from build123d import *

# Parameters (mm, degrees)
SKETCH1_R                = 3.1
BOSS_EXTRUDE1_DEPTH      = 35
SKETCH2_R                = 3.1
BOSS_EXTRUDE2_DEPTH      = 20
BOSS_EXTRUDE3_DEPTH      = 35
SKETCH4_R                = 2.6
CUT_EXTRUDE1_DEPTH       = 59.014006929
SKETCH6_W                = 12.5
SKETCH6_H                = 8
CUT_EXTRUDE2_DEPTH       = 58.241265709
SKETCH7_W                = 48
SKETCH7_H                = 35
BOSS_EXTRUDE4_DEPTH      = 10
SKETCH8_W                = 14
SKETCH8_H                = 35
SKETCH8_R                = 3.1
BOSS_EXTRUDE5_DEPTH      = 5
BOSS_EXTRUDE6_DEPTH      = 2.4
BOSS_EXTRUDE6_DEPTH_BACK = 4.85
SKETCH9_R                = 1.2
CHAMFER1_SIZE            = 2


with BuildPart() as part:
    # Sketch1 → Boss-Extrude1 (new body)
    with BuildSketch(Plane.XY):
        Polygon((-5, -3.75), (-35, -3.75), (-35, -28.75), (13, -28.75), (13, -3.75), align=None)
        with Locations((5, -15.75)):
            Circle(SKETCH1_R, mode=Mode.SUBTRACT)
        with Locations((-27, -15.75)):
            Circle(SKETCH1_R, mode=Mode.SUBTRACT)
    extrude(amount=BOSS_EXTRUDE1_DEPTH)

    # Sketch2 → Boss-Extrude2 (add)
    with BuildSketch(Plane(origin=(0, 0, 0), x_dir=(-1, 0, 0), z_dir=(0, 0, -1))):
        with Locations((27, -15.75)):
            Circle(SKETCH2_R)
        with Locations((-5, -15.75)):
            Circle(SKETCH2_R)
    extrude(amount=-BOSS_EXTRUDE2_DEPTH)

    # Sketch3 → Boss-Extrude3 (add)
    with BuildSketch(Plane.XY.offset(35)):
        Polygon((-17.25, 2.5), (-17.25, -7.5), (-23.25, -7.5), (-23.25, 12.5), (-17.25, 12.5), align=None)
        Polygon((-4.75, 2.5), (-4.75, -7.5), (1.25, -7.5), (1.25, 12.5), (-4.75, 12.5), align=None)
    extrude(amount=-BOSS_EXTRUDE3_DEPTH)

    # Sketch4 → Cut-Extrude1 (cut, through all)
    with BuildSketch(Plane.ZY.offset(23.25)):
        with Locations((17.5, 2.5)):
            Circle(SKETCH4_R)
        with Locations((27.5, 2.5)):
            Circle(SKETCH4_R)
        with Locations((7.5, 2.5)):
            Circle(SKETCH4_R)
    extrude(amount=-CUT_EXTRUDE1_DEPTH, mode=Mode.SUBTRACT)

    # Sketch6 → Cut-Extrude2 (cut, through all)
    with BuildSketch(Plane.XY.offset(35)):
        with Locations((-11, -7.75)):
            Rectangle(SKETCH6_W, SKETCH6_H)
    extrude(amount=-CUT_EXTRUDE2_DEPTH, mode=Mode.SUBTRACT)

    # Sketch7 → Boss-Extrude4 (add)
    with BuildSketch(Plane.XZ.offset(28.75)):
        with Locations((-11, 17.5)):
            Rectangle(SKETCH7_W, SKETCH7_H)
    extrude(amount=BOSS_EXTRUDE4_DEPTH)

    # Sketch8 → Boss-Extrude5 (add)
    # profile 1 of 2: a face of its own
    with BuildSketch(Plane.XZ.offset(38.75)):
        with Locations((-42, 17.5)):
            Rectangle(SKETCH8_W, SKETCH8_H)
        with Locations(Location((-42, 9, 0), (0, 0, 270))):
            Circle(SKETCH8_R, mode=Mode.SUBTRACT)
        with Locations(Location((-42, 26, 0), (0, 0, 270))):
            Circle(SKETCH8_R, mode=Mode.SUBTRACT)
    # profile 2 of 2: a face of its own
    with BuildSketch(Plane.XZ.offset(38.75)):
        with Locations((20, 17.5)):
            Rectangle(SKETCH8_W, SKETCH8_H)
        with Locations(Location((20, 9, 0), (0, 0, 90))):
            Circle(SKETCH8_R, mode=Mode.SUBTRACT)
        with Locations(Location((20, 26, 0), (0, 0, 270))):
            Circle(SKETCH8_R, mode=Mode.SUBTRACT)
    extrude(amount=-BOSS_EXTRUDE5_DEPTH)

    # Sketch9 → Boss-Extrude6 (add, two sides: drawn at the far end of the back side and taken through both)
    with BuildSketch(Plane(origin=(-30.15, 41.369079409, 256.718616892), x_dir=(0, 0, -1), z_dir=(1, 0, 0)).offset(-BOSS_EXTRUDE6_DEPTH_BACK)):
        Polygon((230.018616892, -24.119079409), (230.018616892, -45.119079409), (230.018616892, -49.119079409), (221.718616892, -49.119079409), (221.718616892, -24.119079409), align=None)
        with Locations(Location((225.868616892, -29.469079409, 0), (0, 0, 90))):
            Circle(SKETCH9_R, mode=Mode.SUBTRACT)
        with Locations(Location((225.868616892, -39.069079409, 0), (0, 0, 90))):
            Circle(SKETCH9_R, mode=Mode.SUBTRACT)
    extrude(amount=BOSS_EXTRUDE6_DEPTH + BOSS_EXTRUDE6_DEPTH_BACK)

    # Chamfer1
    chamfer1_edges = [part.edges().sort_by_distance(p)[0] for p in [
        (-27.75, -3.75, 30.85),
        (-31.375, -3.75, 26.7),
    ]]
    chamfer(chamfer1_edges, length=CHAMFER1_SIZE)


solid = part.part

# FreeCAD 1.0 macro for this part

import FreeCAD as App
import Part
import Sketcher


def edges_at(feature, points):
    """Names of the edges that pass closest to the given points."""
    edges = feature.Shape.Edges
    near = lambda p: min(range(len(edges)), key=lambda i: edges[i].distToShape(Part.Vertex(*p))[0])
    return sorted({f"Edge{near(p) + 1}" for p in points})

doc = App.newDocument("Part")
params = doc.addObject("Spreadsheet::Sheet", "Params")
for row, (alias, value) in enumerate([
    ("sketch1_diameter", "6.2 mm"),
    ("sketch1_width", "48 mm"),
    ("sketch1_height", "25 mm"),
    ("pad1_length", "35 mm"),
    ("sketch2_diameter", "6.2 mm"),
    ("pad2_length", "20 mm"),
    ("sketch3_width", "6 mm"),
    ("sketch3_height", "20 mm"),
    ("pad3_length", "35 mm"),
    ("sketch4_diameter", "5.2 mm"),
    ("sketch5_height", "8 mm"),
    ("sketch5_width", "12.5 mm"),
    ("sketch6_width", "48 mm"),
    ("sketch6_height", "35 mm"),
    ("pad4_length", "10 mm"),
    ("sketch7_diameter", "6.2 mm"),
    ("sketch7_width", "14 mm"),
    ("sketch7_height", "35 mm"),
    ("pad5_length", "5 mm"),
    ("sketch8_diameter", "2.4 mm"),
    ("sketch8_width", "25 mm"),
    ("sketch8_height", "8.3 mm"),
    ("pad6_length", "2.4 mm"),
    ("pad6_length2", "4.85 mm"),
    ("chamfer_size", "2 mm"),
], start=1):
    params.set(f"A{row}", alias)
    params.set(f"B{row}", "=" + value)
    params.setAlias(f"B{row}", alias)

body = doc.addObject("PartDesign::Body", "Body")

# Sketch on XY plane
sketch1 = body.newObject("Sketcher::SketchObject", "Sketch")
sketch1.AttachmentSupport = (doc.getObject("XY_Plane"), [""])
sketch1.MapMode = "FlatFace"
sketch1.addGeometry([
    Part.LineSegment(App.Vector(-35, -3.8, 0), App.Vector(-35, -28.8, 0)),  # 0
    Part.LineSegment(App.Vector(-35, -28.8, 0), App.Vector(13, -28.8, 0)),  # 1
    Part.LineSegment(App.Vector(13, -28.8, 0), App.Vector(13, -3.8, 0)),  # 2
    Part.LineSegment(App.Vector(13, -3.8, 0), App.Vector(-35, -3.8, 0)),  # 3
    Part.Circle(App.Vector(-27, -15.8, 0), App.Vector(0, 0, 1), 3.1),  # 4
    Part.Circle(App.Vector(5, -15.8, 0), App.Vector(0, 0, 1), 3.1),  # 5
], False)
sketch1.addConstraint([
    Sketcher.Constraint("Coincident", 0, 2, 1, 1),
    Sketcher.Constraint("Coincident", 1, 2, 2, 1),
    Sketcher.Constraint("Coincident", 2, 2, 3, 1),
    Sketcher.Constraint("Coincident", 3, 2, 0, 1),
    Sketcher.Constraint("Vertical", 0),
    Sketcher.Constraint("Horizontal", 1),
    Sketcher.Constraint("Vertical", 2),
    Sketcher.Constraint("Horizontal", 3),
    Sketcher.Constraint("Equal", 4, 5),
    Sketcher.Constraint("Horizontal", 4, 3, 5, 3),
    Sketcher.Constraint("Diameter", 4, 6.2),
    Sketcher.Constraint("DistanceX", 1, 1, 1, 2, 48.0),
    Sketcher.Constraint("DistanceY", 0, 2, 0, 1, 25.0),
    Sketcher.Constraint("DistanceX", 4, 3, -1, 1, 27.0),
    Sketcher.Constraint("DistanceX", -1, 1, 5, 3, 5.0),
    Sketcher.Constraint("DistanceX", 0, 2, -1, 1, 35.0),
    Sketcher.Constraint("DistanceY", 0, 2, 4, 3, 13.0),
    Sketcher.Constraint("DistanceY", 4, 3, -1, 1, 15.75),
])
sketch1.setExpression("Constraints[10]", "Params.sketch1_diameter")
sketch1.setExpression("Constraints[11]", "Params.sketch1_width")
sketch1.setExpression("Constraints[12]", "Params.sketch1_height")
pad1 = body.newObject("PartDesign::Pad", "Pad")
pad1.Profile = sketch1
pad1.setExpression("Length", "Params.pad1_length")

# Sketch on XY plane
sketch2 = body.newObject("Sketcher::SketchObject", "Sketch001")
sketch2.AttachmentSupport = (doc.getObject("XY_Plane"), [""])
sketch2.MapMode = "FlatFace"
sketch2.addGeometry([
    Part.Circle(App.Vector(-27, -15.8, 0), App.Vector(0, 0, 1), 3.1),
    Part.Circle(App.Vector(5, -15.8, 0), App.Vector(0, 0, 1), 3.1),
], False)
sketch2.addConstraint([
    Sketcher.Constraint("Equal", 0, 1),
    Sketcher.Constraint("Horizontal", 0, 3, 1, 3),
    Sketcher.Constraint("Diameter", 0, 6.2),
    Sketcher.Constraint("DistanceX", 0, 3, -1, 1, 27.0),
    Sketcher.Constraint("DistanceX", -1, 1, 1, 3, 5.0),
    Sketcher.Constraint("DistanceY", 0, 3, -1, 1, 15.75),
])
sketch2.setExpression("Constraints[2]", "Params.sketch2_diameter")
pad2 = body.newObject("PartDesign::Pad", "Pad001")
pad2.Profile = sketch2
pad2.setExpression("Length", "Params.pad2_length")

# Sketch on XY plane
sketch3 = body.newObject("Sketcher::SketchObject", "Sketch002")
sketch3.AttachmentSupport = (doc.getObject("XY_Plane"), [""])
sketch3.MapMode = "FlatFace"
sketch3.AttachmentOffset = App.Placement(App.Vector(0, 0, 35), App.Rotation())
sketch3.addGeometry([
    Part.LineSegment(App.Vector(-17, -8, 0), App.Vector(-17, 12, 0)),  # 0
    Part.LineSegment(App.Vector(-17, 12, 0), App.Vector(-23, 12, 0)),  # 1
    Part.LineSegment(App.Vector(-23, 12, 0), App.Vector(-23, -8, 0)),  # 2
    Part.LineSegment(App.Vector(-23, -8, 0), App.Vector(-17, -8, 0)),  # 3
    Part.LineSegment(App.Vector(-5, -8, 0), App.Vector(1, -8, 0)),  # 4
    Part.LineSegment(App.Vector(1, -8, 0), App.Vector(1, 12, 0)),  # 5
    Part.LineSegment(App.Vector(1, 12, 0), App.Vector(-5, 12, 0)),  # 6
    Part.LineSegment(App.Vector(-5, 12, 0), App.Vector(-5, -8, 0)),  # 7
], False)
sketch3.addConstraint([
    Sketcher.Constraint("Coincident", 0, 2, 1, 1),
    Sketcher.Constraint("Coincident", 1, 2, 2, 1),
    Sketcher.Constraint("Coincident", 2, 2, 3, 1),
    Sketcher.Constraint("Coincident", 3, 2, 0, 1),
    Sketcher.Constraint("Coincident", 4, 2, 5, 1),
    Sketcher.Constraint("Coincident", 5, 2, 6, 1),
    Sketcher.Constraint("Coincident", 6, 2, 7, 1),
    Sketcher.Constraint("Coincident", 7, 2, 4, 1),
    Sketcher.Constraint("Vertical", 0),
    Sketcher.Constraint("Horizontal", 1),
    Sketcher.Constraint("Vertical", 2),
    Sketcher.Constraint("Horizontal", 3),
    Sketcher.Constraint("Horizontal", 4),
    Sketcher.Constraint("Vertical", 5),
    Sketcher.Constraint("Horizontal", 6),
    Sketcher.Constraint("Vertical", 7),
    Sketcher.Constraint("Horizontal", 3, 2, 4, 2),
    Sketcher.Constraint("Horizontal", 1, 2, 5, 2),
    Sketcher.Constraint("Equal", 3, 4),
    Sketcher.Constraint("DistanceX", 1, 2, 1, 1, 6.0),
    Sketcher.Constraint("DistanceY", 0, 1, 0, 2, 20.0),
    Sketcher.Constraint("DistanceY", -1, 1, 0, 2, 12.5),
    Sketcher.Constraint("DistanceX", 3, 2, 4, 2, 18.5),
    Sketcher.Constraint("DistanceX", 0, 2, -1, 1, 17.25),
])
sketch3.setExpression("Constraints[19]", "Params.sketch3_width")
sketch3.setExpression("Constraints[20]", "Params.sketch3_height")
pad3 = body.newObject("PartDesign::Pad", "Pad002")
pad3.Profile = sketch3
pad3.setExpression("Length", "Params.pad3_length")
pad3.Reversed = True

# Sketch on YZ plane
sketch4 = body.newObject("Sketcher::SketchObject", "Sketch003")
sketch4.AttachmentSupport = (doc.getObject("YZ_Plane"), [""])
sketch4.MapMode = "FlatFace"
sketch4.AttachmentOffset = App.Placement(App.Vector(0, 0, -23.25), App.Rotation())
sketch4.addGeometry([
    Part.Circle(App.Vector(2.5, 17.5, 0), App.Vector(0, 0, 1), 2.6),
    Part.Circle(App.Vector(2.5, 27.5, 0), App.Vector(0, 0, 1), 2.6),
    Part.Circle(App.Vector(2.5, 7.5, 0), App.Vector(0, 0, 1), 2.6),
], False)
sketch4.addConstraint([
    Sketcher.Constraint("Equal", 0, 1),
    Sketcher.Constraint("Equal", 1, 2),
    Sketcher.Constraint("Vertical", 0, 3, 1, 3),
    Sketcher.Constraint("Vertical", 1, 3, 2, 3),
    Sketcher.Constraint("Diameter", 0, 5.2),
    Sketcher.Constraint("DistanceY", 0, 3, 1, 3, 10.0),
    Sketcher.Constraint("DistanceY", 2, 3, 0, 3, 10.0),
    Sketcher.Constraint("DistanceX", -1, 1, 0, 3, 2.5),
    Sketcher.Constraint("DistanceY", -1, 1, 0, 3, 17.5),
])
sketch4.setExpression("Constraints[4]", "Params.sketch4_diameter")
pocket1 = body.newObject("PartDesign::Pocket", "Pocket")
pocket1.Profile = sketch4
pocket1.Type = "ThroughAll"
pocket1.Reversed = True

# Sketch on XY plane
sketch5 = body.newObject("Sketcher::SketchObject", "Sketch004")
sketch5.AttachmentSupport = (doc.getObject("XY_Plane"), [""])
sketch5.MapMode = "FlatFace"
sketch5.AttachmentOffset = App.Placement(App.Vector(0, 0, 35), App.Rotation())
sketch5.addGeometry([
    Part.LineSegment(App.Vector(-17, -4, 0), App.Vector(-17, -12, 0)),
    Part.LineSegment(App.Vector(-17, -12, 0), App.Vector(-5, -12, 0)),
    Part.LineSegment(App.Vector(-5, -12, 0), App.Vector(-5, -4, 0)),
    Part.LineSegment(App.Vector(-5, -4, 0), App.Vector(-17, -4, 0)),
], False)
sketch5.addConstraint([
    Sketcher.Constraint("Coincident", 0, 2, 1, 1),
    Sketcher.Constraint("Coincident", 1, 2, 2, 1),
    Sketcher.Constraint("Coincident", 2, 2, 3, 1),
    Sketcher.Constraint("Coincident", 3, 2, 0, 1),
    Sketcher.Constraint("Vertical", 0),
    Sketcher.Constraint("Horizontal", 1),
    Sketcher.Constraint("Vertical", 2),
    Sketcher.Constraint("Horizontal", 3),
    Sketcher.Constraint("DistanceY", 0, 2, 0, 1, 8.0),
    Sketcher.Constraint("DistanceX", 1, 1, 1, 2, 12.5),
    Sketcher.Constraint("DistanceX", 0, 2, -1, 1, 17.25),
    Sketcher.Constraint("DistanceY", 0, 2, -1, 1, 11.75),
])
sketch5.setExpression("Constraints[8]", "Params.sketch5_height")
sketch5.setExpression("Constraints[9]", "Params.sketch5_width")
pocket2 = body.newObject("PartDesign::Pocket", "Pocket001")
pocket2.Profile = sketch5
pocket2.Type = "ThroughAll"

# Sketch on XZ plane
sketch6 = body.newObject("Sketcher::SketchObject", "Sketch005")
sketch6.AttachmentSupport = (doc.getObject("XZ_Plane"), [""])
sketch6.MapMode = "FlatFace"
sketch6.AttachmentOffset = App.Placement(App.Vector(0, 0, 28.75), App.Rotation())
sketch6.addGeometry([
    Part.LineSegment(App.Vector(-35, 35, 0), App.Vector(-35, 0, 0)),
    Part.LineSegment(App.Vector(-35, 0, 0), App.Vector(13, 0, 0)),
    Part.LineSegment(App.Vector(13, 0, 0), App.Vector(13, 35, 0)),
    Part.LineSegment(App.Vector(13, 35, 0), App.Vector(-35, 35, 0)),
], False)
sketch6.addConstraint([
    Sketcher.Constraint("Coincident", 0, 2, 1, 1),
    Sketcher.Constraint("Coincident", 1, 2, 2, 1),
    Sketcher.Constraint("Coincident", 2, 2, 3, 1),
    Sketcher.Constraint("Coincident", 3, 2, 0, 1),
    Sketcher.Constraint("Vertical", 0),
    Sketcher.Constraint("Horizontal", 1),
    Sketcher.Constraint("Vertical", 2),
    Sketcher.Constraint("Horizontal", 3),
    Sketcher.Constraint("PointOnObject", 0, 2, -1),
    Sketcher.Constraint("DistanceX", 1, 1, 1, 2, 48.0),
    Sketcher.Constraint("DistanceY", 0, 2, 0, 1, 35.0),
    Sketcher.Constraint("DistanceX", 0, 2, -1, 1, 35.0),
])
sketch6.setExpression("Constraints[9]", "Params.sketch6_width")
sketch6.setExpression("Constraints[10]", "Params.sketch6_height")
pad4 = body.newObject("PartDesign::Pad", "Pad003")
pad4.Profile = sketch6
pad4.setExpression("Length", "Params.pad4_length")

# Sketch on XZ plane
sketch7 = body.newObject("Sketcher::SketchObject", "Sketch006")
sketch7.AttachmentSupport = (doc.getObject("XZ_Plane"), [""])
sketch7.MapMode = "FlatFace"
sketch7.AttachmentOffset = App.Placement(App.Vector(0, 0, 38.75), App.Rotation())
sketch7.addGeometry([
    Part.LineSegment(App.Vector(-49, 35, 0), App.Vector(-49, 0, 0)),  # 0
    Part.LineSegment(App.Vector(-49, 0, 0), App.Vector(-35, 0, 0)),  # 1
    Part.LineSegment(App.Vector(-35, 0, 0), App.Vector(-35, 35, 0)),  # 2
    Part.LineSegment(App.Vector(-35, 35, 0), App.Vector(-49, 35, 0)),  # 3
    Part.Circle(App.Vector(-42, 9, 0), App.Vector(0, 0, 1), 3.1),  # 4
    Part.Circle(App.Vector(-42, 26, 0), App.Vector(0, 0, 1), 3.1),  # 5
    Part.LineSegment(App.Vector(13, 35, 0), App.Vector(13, 0, 0)),  # 6
    Part.LineSegment(App.Vector(13, 0, 0), App.Vector(27, 0, 0)),  # 7
    Part.LineSegment(App.Vector(27, 0, 0), App.Vector(27, 35, 0)),  # 8
    Part.LineSegment(App.Vector(27, 35, 0), App.Vector(13, 35, 0)),  # 9
    Part.Circle(App.Vector(20, 9, 0), App.Vector(0, 0, 1), 3.1),  # 10
    Part.Circle(App.Vector(20, 26, 0), App.Vector(0, 0, 1), 3.1),  # 11
], False)
sketch7.addConstraint([
    Sketcher.Constraint("Coincident", 0, 2, 1, 1),
    Sketcher.Constraint("Coincident", 1, 2, 2, 1),
    Sketcher.Constraint("Coincident", 2, 2, 3, 1),
    Sketcher.Constraint("Coincident", 3, 2, 0, 1),
    Sketcher.Constraint("Coincident", 6, 2, 7, 1),
    Sketcher.Constraint("Coincident", 7, 2, 8, 1),
    Sketcher.Constraint("Coincident", 8, 2, 9, 1),
    Sketcher.Constraint("Coincident", 9, 2, 6, 1),
    Sketcher.Constraint("Vertical", 0),
    Sketcher.Constraint("Horizontal", 1),
    Sketcher.Constraint("Vertical", 2),
    Sketcher.Constraint("Horizontal", 3),
    Sketcher.Constraint("Vertical", 6),
    Sketcher.Constraint("Horizontal", 7),
    Sketcher.Constraint("Vertical", 8),
    Sketcher.Constraint("Horizontal", 9),
    Sketcher.Constraint("Equal", 4, 5),
    Sketcher.Constraint("Equal", 5, 10),
    Sketcher.Constraint("Equal", 10, 11),
    Sketcher.Constraint("PointOnObject", 0, 2, -1),
    Sketcher.Constraint("PointOnObject", 6, 2, -1),
    Sketcher.Constraint("Horizontal", 4, 3, 10, 3),
    Sketcher.Constraint("Horizontal", 5, 3, 11, 3),
    Sketcher.Constraint("Horizontal", 3, 2, 8, 2),
    Sketcher.Constraint("Vertical", 4, 3, 5, 3),
    Sketcher.Constraint("Vertical", 10, 3, 11, 3),
    Sketcher.Constraint("Equal", 3, 7),
    Sketcher.Constraint("Diameter", 4, 6.2),
    Sketcher.Constraint("DistanceX", 1, 1, 1, 2, 14.0),
    Sketcher.Constraint("DistanceY", 0, 2, 0, 1, 35.0),
    Sketcher.Constraint("DistanceX", 4, 3, -1, 1, 42.0),
    Sketcher.Constraint("DistanceY", -1, 1, 4, 3, 9.0),
    Sketcher.Constraint("DistanceY", -1, 1, 5, 3, 26.0),
    Sketcher.Constraint("DistanceX", -1, 1, 10, 3, 20.0),
    Sketcher.Constraint("DistanceX", 0, 2, -1, 1, 49.0),
    Sketcher.Constraint("DistanceX", -1, 1, 6, 2, 13.0),
])
sketch7.setExpression("Constraints[27]", "Params.sketch7_diameter")
sketch7.setExpression("Constraints[28]", "Params.sketch7_width")
sketch7.setExpression("Constraints[29]", "Params.sketch7_height")
pad5 = body.newObject("PartDesign::Pad", "Pad004")
pad5.Profile = sketch7
pad5.setExpression("Length", "Params.pad5_length")
pad5.Reversed = True

# Sketch on YZ plane
sketch8 = body.newObject("Sketcher::SketchObject", "Sketch007")
sketch8.AttachmentSupport = (doc.getObject("YZ_Plane"), [""])
sketch8.MapMode = "FlatFace"
sketch8.AttachmentOffset = App.Placement(App.Vector(0, 0, -30.15), App.Rotation())
sketch8.addGeometry([
    Part.LineSegment(App.Vector(-7.8, 26.7, 0), App.Vector(17.2, 26.7, 0)),  # 0
    Part.LineSegment(App.Vector(17.2, 26.7, 0), App.Vector(17.2, 35, 0)),  # 1
    Part.LineSegment(App.Vector(17.2, 35, 0), App.Vector(-7.8, 35, 0)),  # 2
    Part.LineSegment(App.Vector(-7.8, 35, 0), App.Vector(-7.8, 26.7, 0)),  # 3
    Part.Circle(App.Vector(2.3, 30.9, 0), App.Vector(0, 0, 1), 1.2),  # 4
    Part.Circle(App.Vector(11.9, 30.9, 0), App.Vector(0, 0, 1), 1.2),  # 5
], False)
sketch8.addConstraint([
    Sketcher.Constraint("Coincident", 0, 2, 1, 1),
    Sketcher.Constraint("Coincident", 1, 2, 2, 1),
    Sketcher.Constraint("Coincident", 2, 2, 3, 1),
    Sketcher.Constraint("Coincident", 3, 2, 0, 1),
    Sketcher.Constraint("Horizontal", 0),
    Sketcher.Constraint("Vertical", 1),
    Sketcher.Constraint("Horizontal", 2),
    Sketcher.Constraint("Vertical", 3),
    Sketcher.Constraint("Equal", 4, 5),
    Sketcher.Constraint("Horizontal", 4, 3, 5, 3),
    Sketcher.Constraint("Diameter", 4, 2.4),
    Sketcher.Constraint("DistanceX", 0, 1, 0, 2, 25.0),
    Sketcher.Constraint("DistanceY", 1, 1, 1, 2, 8.3),
    Sketcher.Constraint("DistanceY", -1, 1, 1, 2, 35.0),
    Sketcher.Constraint("DistanceX", -1, 1, 4, 3, 2.3),
    Sketcher.Constraint("DistanceX", -1, 1, 5, 3, 11.9),
    Sketcher.Constraint("DistanceY", -1, 1, 4, 3, 30.85),
    Sketcher.Constraint("DistanceX", -1, 1, 0, 2, 17.25),
])
sketch8.setExpression("Constraints[10]", "Params.sketch8_diameter")
sketch8.setExpression("Constraints[11]", "Params.sketch8_width")
sketch8.setExpression("Constraints[12]", "Params.sketch8_height")
pad6 = body.newObject("PartDesign::Pad", "Pad005")
pad6.Profile = sketch8
pad6.Type = "TwoLengths"
pad6.setExpression("Length", "Params.pad6_length")
pad6.setExpression("Length2", "Params.pad6_length2")
doc.recompute()

chamfer = body.newObject("PartDesign::Chamfer", "Chamfer")
chamfer.Base = (pad6, edges_at(pad6, [(-27.75, -3.75, 30.85), (-31.375, -3.75, 26.7)]))
chamfer.setExpression("Size", "Params.chamfer_size")

doc.recompute()
